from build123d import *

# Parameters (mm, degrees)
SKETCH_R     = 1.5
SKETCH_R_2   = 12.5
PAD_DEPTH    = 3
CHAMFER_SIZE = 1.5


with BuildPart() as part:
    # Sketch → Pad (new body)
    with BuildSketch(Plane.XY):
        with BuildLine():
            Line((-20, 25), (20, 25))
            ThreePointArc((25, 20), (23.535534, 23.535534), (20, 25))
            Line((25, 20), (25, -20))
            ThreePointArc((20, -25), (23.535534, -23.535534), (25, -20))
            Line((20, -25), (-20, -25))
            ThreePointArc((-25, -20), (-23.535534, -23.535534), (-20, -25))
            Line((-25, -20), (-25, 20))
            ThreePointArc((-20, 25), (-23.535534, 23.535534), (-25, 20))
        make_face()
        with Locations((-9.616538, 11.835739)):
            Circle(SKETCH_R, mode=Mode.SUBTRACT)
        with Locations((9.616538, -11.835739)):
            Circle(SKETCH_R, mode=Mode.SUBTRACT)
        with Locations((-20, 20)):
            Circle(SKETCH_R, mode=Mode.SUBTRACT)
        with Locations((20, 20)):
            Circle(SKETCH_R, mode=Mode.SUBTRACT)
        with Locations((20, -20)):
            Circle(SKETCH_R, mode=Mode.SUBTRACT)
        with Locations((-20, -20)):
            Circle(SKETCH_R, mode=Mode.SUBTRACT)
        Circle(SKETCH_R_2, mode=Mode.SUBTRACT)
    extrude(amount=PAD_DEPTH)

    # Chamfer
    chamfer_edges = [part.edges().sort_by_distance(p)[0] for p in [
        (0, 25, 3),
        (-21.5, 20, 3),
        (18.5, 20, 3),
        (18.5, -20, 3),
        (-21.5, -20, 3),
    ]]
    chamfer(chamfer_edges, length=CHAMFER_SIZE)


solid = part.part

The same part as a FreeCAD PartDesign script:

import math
import FreeCAD as App
import Part
import Sketcher

V = App.Vector


def edges_at(feature, points):
    """Names of the edges that pass closest to the given points."""
    edges = feature.Shape.Edges
    near = lambda p: min(range(len(edges)), key=lambda i: edges[i].distToShape(Part.Vertex(*p))[0])
    return sorted({f"Edge{near(p) + 1}" for p in points})

doc = App.newDocument("Part")
body = doc.addObject("PartDesign::Body", "Body")

# Sketch on XY plane
sketch1 = body.newObject("Sketcher::SketchObject", "Sketch")
sketch1.AttachmentSupport = (doc.getObject("XY_Plane"), [""])
sketch1.MapMode = "FlatFace"
sketch1.addGeometry(Part.LineSegment(V(20, 25, 0), V(-20, 25, 0)), False)
sketch1.addGeometry(Part.ArcOfCircle(Part.Circle(V(-20, 20, 0), V(0, 0, 1), 5), math.radians(89.999996), math.radians(180.000004)), False)
sketch1.addGeometry(Part.LineSegment(V(-25, 20, 0), V(-25, -20, 0)), False)
sketch1.addGeometry(Part.ArcOfCircle(Part.Circle(V(-20, -20, 0), V(0, 0, 1), 5), math.radians(179.999996), math.radians(270.000004)), False)
sketch1.addGeometry(Part.LineSegment(V(-20, -25, 0), V(20, -25, 0)), False)
sketch1.addGeometry(Part.ArcOfCircle(Part.Circle(V(20, -20, 0), V(0, 0, 1), 5), math.radians(-90.000004), math.radians(0.000004)), False)
sketch1.addGeometry(Part.LineSegment(V(25, -20, 0), V(25, 20, 0)), False)
sketch1.addGeometry(Part.ArcOfCircle(Part.Circle(V(20, 20, 0), V(0, 0, 1), 5), math.radians(-0.000004), math.radians(90.000004)), False)
sketch1.addGeometry(Part.Circle(V(20, -20, 0), V(0, 0, 1), 1.5), False)
sketch1.addGeometry(Part.Circle(V(9.616538, -11.835739, 0), V(0, 0, 1), 1.5), False)
sketch1.addGeometry(Part.Circle(V(-20, -20, 0), V(0, 0, 1), 1.5), False)
sketch1.addGeometry(Part.Circle(V(20, 20, 0), V(0, 0, 1), 1.5), False)
sketch1.addGeometry(Part.Circle(V(0, 0, 0), V(0, 0, 1), 12.5), False)
sketch1.addGeometry(Part.Circle(V(-9.616538, 11.835739, 0), V(0, 0, 1), 1.5), False)
sketch1.addGeometry(Part.Circle(V(-20, 20, 0), V(0, 0, 1), 1.5), False)
sketch1.addConstraint(Sketcher.Constraint("Tangent", 0, 2, 1, 1))
sketch1.addConstraint(Sketcher.Constraint("Tangent", 1, 2, 2, 1))
sketch1.addConstraint(Sketcher.Constraint("Tangent", 2, 2, 3, 1))
sketch1.addConstraint(Sketcher.Constraint("Tangent", 3, 2, 4, 1))
sketch1.addConstraint(Sketcher.Constraint("Tangent", 4, 2, 5, 1))
sketch1.addConstraint(Sketcher.Constraint("Tangent", 5, 2, 6, 1))
sketch1.addConstraint(Sketcher.Constraint("Tangent", 6, 2, 7, 1))
sketch1.addConstraint(Sketcher.Constraint("Tangent", 7, 2, 0, 1))
sketch1.addConstraint(Sketcher.Constraint("Horizontal", 0))
sketch1.addConstraint(Sketcher.Constraint("Vertical", 2))
sketch1.addConstraint(Sketcher.Constraint("Horizontal", 4))
sketch1.addConstraint(Sketcher.Constraint("Vertical", 6))
sketch1.addConstraint(Sketcher.Constraint("Coincident", 12, 3, -1, 1))
sketch1.addConstraint(Sketcher.Constraint("Coincident", 8, 3, 5, 3))
sketch1.addConstraint(Sketcher.Constraint("Coincident", 10, 3, 3, 3))
sketch1.addConstraint(Sketcher.Constraint("Coincident", 11, 3, 7, 3))
sketch1.addConstraint(Sketcher.Constraint("Coincident", 14, 3, 1, 3))
sketch1.addConstraint(Sketcher.Constraint("Equal", 1, 3))
sketch1.addConstraint(Sketcher.Constraint("Equal", 3, 5))
sketch1.addConstraint(Sketcher.Constraint("Equal", 5, 7))
sketch1.addConstraint(Sketcher.Constraint("Equal", 8, 9))
sketch1.addConstraint(Sketcher.Constraint("Equal", 9, 10))
sketch1.addConstraint(Sketcher.Constraint("Equal", 10, 11))
sketch1.addConstraint(Sketcher.Constraint("Equal", 11, 13))
sketch1.addConstraint(Sketcher.Constraint("Equal", 13, 14))
sketch1.addConstraint(Sketcher.Constraint("Symmetric", 1, 3, 5, 3, -1, 1))
sketch1.addConstraint(Sketcher.Constraint("Symmetric", 9, 3, 13, 3, -1, 1))
sketch1.addConstraint(Sketcher.Constraint("Equal", 4, 2))
sketch1.addConstraint(Sketcher.Constraint("Diameter", 8, 3.0))
sketch1.addConstraint(Sketcher.Constraint("Diameter", 12, 25.0))
sketch1.addConstraint(Sketcher.Constraint("Radius", 1, 5.0))
sketch1.addConstraint(Sketcher.Constraint("DistanceX", 0, 2, 0, 1, 40.0))
sketch1.addConstraint(Sketcher.Constraint("DistanceY", 9, 3, -1, 1, 11.835739))
sketch1.addConstraint(Sketcher.Constraint("DistanceX", 3, 3, 9, 3, 29.616538))
pad1 = body.newObject("PartDesign::Pad", "Pad")
pad1.Profile = sketch1
pad1.Length = 3
doc.recompute()

chamfer = body.newObject("PartDesign::Chamfer", "Chamfer")
chamfer.Base = (pad1, edges_at(pad1, [
    (0, 25, 3),
    (-21.5, 20, 3),
    (18.5, 20, 3),
    (18.5, -20, 3),
    (-21.5, -20, 3),
]))
chamfer.Size = 1.5

doc.recompute()
